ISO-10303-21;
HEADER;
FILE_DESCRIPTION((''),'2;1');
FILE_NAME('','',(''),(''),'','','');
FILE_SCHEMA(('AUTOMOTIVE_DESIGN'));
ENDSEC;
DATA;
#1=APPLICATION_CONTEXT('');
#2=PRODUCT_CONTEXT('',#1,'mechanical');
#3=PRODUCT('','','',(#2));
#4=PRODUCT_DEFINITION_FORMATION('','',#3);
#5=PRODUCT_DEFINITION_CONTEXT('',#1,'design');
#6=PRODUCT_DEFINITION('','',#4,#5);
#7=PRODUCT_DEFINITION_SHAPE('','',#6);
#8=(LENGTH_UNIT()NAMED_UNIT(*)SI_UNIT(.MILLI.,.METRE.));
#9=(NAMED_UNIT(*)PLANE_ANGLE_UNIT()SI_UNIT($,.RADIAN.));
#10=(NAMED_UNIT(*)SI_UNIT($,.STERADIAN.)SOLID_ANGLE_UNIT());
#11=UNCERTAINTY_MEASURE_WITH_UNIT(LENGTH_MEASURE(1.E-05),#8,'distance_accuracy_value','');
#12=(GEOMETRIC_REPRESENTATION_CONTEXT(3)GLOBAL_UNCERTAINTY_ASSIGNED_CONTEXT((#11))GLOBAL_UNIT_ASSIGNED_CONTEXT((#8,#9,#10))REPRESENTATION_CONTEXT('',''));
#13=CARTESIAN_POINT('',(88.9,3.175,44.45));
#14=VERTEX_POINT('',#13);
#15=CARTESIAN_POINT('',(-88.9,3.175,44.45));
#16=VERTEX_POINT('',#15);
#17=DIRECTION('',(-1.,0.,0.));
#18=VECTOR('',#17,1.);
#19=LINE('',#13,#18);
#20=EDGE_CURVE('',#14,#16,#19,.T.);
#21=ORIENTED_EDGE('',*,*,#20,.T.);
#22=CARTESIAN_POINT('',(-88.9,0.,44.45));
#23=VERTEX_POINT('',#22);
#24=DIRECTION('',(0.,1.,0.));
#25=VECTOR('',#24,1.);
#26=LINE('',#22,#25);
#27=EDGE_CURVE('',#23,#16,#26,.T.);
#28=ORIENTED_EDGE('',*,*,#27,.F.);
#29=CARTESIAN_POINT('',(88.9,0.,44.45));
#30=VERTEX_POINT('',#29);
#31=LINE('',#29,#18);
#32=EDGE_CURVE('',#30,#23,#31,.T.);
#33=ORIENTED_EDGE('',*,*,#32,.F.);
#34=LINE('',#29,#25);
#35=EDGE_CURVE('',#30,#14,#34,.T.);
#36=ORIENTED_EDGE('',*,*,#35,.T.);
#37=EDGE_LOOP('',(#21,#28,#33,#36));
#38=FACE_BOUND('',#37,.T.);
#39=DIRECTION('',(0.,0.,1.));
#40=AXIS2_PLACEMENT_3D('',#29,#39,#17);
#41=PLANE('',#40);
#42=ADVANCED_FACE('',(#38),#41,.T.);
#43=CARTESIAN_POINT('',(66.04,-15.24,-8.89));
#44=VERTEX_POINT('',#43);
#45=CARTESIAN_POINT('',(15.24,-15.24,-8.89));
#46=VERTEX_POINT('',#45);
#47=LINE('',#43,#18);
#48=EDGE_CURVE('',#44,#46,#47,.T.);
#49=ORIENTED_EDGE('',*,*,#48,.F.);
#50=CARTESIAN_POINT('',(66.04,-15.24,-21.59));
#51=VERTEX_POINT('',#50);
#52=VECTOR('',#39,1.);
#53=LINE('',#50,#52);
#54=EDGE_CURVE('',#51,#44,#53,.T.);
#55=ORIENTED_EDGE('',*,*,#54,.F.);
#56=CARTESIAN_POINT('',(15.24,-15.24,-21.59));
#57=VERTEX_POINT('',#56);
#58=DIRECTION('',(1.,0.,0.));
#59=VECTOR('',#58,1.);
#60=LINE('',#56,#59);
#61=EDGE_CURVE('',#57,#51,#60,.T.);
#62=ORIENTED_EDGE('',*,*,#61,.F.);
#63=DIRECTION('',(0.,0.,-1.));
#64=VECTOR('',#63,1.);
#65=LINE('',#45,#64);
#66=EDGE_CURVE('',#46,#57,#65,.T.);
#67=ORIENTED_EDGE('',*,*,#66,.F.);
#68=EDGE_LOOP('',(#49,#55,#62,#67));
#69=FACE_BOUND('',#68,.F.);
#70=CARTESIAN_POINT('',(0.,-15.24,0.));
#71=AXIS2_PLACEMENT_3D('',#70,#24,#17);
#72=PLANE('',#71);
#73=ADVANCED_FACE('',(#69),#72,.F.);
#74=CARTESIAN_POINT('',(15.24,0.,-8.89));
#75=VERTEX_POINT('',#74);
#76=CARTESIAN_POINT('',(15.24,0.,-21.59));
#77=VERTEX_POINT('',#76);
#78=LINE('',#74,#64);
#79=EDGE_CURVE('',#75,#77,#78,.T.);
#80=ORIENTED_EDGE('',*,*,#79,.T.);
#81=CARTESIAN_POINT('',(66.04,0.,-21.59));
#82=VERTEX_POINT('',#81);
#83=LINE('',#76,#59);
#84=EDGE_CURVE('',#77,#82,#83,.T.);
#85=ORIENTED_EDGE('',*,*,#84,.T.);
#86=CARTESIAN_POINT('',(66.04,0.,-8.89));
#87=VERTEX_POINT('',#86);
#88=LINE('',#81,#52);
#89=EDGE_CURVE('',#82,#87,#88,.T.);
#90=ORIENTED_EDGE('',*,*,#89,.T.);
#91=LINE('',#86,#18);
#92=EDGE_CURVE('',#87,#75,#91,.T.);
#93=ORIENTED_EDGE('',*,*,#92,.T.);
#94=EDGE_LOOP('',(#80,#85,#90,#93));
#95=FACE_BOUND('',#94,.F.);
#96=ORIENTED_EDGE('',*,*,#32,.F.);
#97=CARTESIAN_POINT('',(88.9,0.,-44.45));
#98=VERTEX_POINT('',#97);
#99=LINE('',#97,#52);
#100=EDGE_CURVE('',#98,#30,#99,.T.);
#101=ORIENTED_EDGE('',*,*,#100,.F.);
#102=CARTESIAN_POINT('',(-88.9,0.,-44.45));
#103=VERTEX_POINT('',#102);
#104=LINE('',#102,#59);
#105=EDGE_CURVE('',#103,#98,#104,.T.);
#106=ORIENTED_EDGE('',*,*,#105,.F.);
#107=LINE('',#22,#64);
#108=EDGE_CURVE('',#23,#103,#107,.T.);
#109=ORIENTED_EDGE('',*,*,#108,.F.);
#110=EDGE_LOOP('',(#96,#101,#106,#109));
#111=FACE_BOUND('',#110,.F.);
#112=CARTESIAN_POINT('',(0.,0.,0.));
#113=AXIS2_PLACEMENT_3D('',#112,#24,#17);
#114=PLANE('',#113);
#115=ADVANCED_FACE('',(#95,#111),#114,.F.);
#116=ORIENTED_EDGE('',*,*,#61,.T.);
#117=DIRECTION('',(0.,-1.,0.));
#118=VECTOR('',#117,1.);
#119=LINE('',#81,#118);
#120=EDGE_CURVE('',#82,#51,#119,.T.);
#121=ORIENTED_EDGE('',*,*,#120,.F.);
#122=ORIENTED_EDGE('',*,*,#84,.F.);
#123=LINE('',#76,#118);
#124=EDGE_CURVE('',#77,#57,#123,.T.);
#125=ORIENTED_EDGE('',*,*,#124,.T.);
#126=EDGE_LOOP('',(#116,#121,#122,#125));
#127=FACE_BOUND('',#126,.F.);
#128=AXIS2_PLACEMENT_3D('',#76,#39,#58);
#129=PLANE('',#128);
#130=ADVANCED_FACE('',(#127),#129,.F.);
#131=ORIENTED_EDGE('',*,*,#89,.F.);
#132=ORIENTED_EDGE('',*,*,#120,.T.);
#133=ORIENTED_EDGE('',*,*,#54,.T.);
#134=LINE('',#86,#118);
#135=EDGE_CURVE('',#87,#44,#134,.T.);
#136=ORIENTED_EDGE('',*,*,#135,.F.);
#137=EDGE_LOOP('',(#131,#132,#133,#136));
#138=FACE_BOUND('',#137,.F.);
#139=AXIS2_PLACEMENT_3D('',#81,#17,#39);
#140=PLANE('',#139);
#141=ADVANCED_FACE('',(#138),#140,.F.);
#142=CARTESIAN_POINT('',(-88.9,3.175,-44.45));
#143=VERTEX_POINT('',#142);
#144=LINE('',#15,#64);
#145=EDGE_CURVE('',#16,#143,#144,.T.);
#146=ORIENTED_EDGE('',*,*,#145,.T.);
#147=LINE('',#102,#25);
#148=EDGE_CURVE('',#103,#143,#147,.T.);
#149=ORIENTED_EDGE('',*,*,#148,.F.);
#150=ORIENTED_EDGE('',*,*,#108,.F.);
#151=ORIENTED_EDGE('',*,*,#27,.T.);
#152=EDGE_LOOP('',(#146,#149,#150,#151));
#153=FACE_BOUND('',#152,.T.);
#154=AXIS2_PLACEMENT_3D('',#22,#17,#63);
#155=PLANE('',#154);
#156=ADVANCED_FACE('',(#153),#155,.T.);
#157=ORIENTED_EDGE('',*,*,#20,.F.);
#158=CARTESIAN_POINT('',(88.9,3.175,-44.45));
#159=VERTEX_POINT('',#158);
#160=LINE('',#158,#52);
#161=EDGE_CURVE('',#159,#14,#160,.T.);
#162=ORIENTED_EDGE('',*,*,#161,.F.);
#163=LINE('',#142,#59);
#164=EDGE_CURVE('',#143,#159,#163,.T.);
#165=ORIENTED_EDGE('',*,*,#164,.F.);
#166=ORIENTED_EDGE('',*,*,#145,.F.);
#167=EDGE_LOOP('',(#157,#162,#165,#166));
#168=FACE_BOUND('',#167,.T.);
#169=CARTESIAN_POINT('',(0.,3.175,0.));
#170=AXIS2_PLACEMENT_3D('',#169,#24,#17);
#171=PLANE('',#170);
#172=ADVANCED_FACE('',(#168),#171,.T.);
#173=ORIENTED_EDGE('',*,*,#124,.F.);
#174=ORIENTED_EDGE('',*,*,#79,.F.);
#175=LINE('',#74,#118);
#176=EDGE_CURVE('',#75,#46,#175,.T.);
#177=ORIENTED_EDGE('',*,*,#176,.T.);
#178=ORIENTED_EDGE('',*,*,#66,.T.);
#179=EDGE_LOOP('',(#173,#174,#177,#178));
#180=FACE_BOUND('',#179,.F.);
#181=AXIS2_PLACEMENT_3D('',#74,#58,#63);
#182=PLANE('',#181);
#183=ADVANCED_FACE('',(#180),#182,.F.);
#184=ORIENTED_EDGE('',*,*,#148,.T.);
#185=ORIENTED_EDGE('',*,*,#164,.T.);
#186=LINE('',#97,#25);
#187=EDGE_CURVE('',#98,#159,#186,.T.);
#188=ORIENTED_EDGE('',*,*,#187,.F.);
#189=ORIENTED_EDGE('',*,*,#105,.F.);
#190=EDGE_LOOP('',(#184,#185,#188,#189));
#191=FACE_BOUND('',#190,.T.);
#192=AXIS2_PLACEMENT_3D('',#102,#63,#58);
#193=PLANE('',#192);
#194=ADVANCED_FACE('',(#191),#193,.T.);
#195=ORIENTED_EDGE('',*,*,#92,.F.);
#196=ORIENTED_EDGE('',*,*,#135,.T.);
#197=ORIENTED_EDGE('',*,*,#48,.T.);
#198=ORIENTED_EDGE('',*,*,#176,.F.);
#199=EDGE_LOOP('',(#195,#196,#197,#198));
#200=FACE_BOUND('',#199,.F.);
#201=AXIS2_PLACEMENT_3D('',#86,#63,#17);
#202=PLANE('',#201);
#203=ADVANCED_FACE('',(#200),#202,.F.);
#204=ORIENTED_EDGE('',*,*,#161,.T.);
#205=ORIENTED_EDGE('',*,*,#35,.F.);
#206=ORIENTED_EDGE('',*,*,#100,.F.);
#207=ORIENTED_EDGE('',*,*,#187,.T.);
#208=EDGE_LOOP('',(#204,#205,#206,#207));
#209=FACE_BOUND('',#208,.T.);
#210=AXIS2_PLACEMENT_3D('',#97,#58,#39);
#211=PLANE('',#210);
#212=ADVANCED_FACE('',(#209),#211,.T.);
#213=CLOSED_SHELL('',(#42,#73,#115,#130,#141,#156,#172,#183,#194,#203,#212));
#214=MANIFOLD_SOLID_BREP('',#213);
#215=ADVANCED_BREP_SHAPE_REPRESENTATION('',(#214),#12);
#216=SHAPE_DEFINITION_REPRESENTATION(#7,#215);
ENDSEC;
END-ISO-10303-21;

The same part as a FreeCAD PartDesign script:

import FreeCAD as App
import Part
import Sketcher
Q = App.Units.Quantity

doc = App.newDocument("Part")
body = doc.addObject("PartDesign::Body", "Body")

# Sketch on XZ plane
sketch1 = body.newObject("Sketcher::SketchObject", "Sketch")
sketch1.AttachmentSupport = (doc.getObject("XZ_Plane"), [""])
sketch1.MapMode = "FlatFace"
sketch1.addGeometry(Part.LineSegment(App.Vector(-88.9, 44.45, 0), App.Vector(88.9, 44.45, 0)), False)
sketch1.addGeometry(Part.LineSegment(App.Vector(88.9, 44.45, 0), App.Vector(88.9, -44.45, 0)), False)
sketch1.addGeometry(Part.LineSegment(App.Vector(88.9, -44.45, 0), App.Vector(-88.9, -44.45, 0)), False)
sketch1.addGeometry(Part.LineSegment(App.Vector(-88.9, -44.45, 0), App.Vector(-88.9, 44.45, 0)), False)
sketch1.addConstraint(Sketcher.Constraint("Coincident", 0, 2, 1, 1))
sketch1.addConstraint(Sketcher.Constraint("Coincident", 1, 2, 2, 1))
sketch1.addConstraint(Sketcher.Constraint("Coincident", 2, 2, 3, 1))
sketch1.addConstraint(Sketcher.Constraint("Coincident", 3, 2, 0, 1))
sketch1.addConstraint(Sketcher.Constraint("Horizontal", 0))
sketch1.addConstraint(Sketcher.Constraint("Vertical", 1))
sketch1.addConstraint(Sketcher.Constraint("Horizontal", 2))
sketch1.addConstraint(Sketcher.Constraint("Vertical", 3))
sketch1.addConstraint(Sketcher.Constraint("Symmetric", 0, 2, 2, 2, -1, 1))
sketch1.addConstraint(Sketcher.Constraint("DistanceX", 0, 1, 0, 2, Q("7 in")))
sketch1.addConstraint(Sketcher.Constraint("DistanceY", 1, 2, 1, 1, Q("3.5 in")))
pad1 = body.newObject("PartDesign::Pad", "Pad")
pad1.Profile = sketch1
pad1.Length = Q("0.125 in")
pad1.Reversed = True

# Sketch on XZ plane
sketch2 = body.newObject("Sketcher::SketchObject", "Sketch001")
sketch2.AttachmentSupport = (doc.getObject("XZ_Plane"), [""])
sketch2.MapMode = "FlatFace"
sketch2.addGeometry(Part.LineSegment(App.Vector(15.24, -8.89, 0), App.Vector(66.04, -8.89, 0)), False)
sketch2.addGeometry(Part.LineSegment(App.Vector(66.04, -8.89, 0), App.Vector(66.04, -21.59, 0)), False)
sketch2.addGeometry(Part.LineSegment(App.Vector(66.04, -21.59, 0), App.Vector(15.24, -21.59, 0)), False)
sketch2.addGeometry(Part.LineSegment(App.Vector(15.24, -21.59, 0), App.Vector(15.24, -8.89, 0)), False)
sketch2.addConstraint(Sketcher.Constraint("Coincident", 0, 2, 1, 1))
sketch2.addConstraint(Sketcher.Constraint("Coincident", 1, 2, 2, 1))
sketch2.addConstraint(Sketcher.Constraint("Coincident", 2, 2, 3, 1))
sketch2.addConstraint(Sketcher.Constraint("Coincident", 3, 2, 0, 1))
sketch2.addConstraint(Sketcher.Constraint("Horizontal", 0))
sketch2.addConstraint(Sketcher.Constraint("Vertical", 1))
sketch2.addConstraint(Sketcher.Constraint("Horizontal", 2))
sketch2.addConstraint(Sketcher.Constraint("Vertical", 3))
sketch2.addConstraint(Sketcher.Constraint("DistanceX", 0, 1, 0, 2, Q("2 in")))
sketch2.addConstraint(Sketcher.Constraint("DistanceY", 1, 2, 1, 1, Q("0.5 in")))
sketch2.addConstraint(Sketcher.Constraint("DistanceX", -1, 1, 0, 2, Q("2.6 in")))
sketch2.addConstraint(Sketcher.Constraint("DistanceY", 0, 2, -1, 1, Q("0.35 in")))
pad2 = body.newObject("PartDesign::Pad", "Pad001")
pad2.Profile = sketch2
pad2.Length = Q("0.6 in")

doc.recompute()
